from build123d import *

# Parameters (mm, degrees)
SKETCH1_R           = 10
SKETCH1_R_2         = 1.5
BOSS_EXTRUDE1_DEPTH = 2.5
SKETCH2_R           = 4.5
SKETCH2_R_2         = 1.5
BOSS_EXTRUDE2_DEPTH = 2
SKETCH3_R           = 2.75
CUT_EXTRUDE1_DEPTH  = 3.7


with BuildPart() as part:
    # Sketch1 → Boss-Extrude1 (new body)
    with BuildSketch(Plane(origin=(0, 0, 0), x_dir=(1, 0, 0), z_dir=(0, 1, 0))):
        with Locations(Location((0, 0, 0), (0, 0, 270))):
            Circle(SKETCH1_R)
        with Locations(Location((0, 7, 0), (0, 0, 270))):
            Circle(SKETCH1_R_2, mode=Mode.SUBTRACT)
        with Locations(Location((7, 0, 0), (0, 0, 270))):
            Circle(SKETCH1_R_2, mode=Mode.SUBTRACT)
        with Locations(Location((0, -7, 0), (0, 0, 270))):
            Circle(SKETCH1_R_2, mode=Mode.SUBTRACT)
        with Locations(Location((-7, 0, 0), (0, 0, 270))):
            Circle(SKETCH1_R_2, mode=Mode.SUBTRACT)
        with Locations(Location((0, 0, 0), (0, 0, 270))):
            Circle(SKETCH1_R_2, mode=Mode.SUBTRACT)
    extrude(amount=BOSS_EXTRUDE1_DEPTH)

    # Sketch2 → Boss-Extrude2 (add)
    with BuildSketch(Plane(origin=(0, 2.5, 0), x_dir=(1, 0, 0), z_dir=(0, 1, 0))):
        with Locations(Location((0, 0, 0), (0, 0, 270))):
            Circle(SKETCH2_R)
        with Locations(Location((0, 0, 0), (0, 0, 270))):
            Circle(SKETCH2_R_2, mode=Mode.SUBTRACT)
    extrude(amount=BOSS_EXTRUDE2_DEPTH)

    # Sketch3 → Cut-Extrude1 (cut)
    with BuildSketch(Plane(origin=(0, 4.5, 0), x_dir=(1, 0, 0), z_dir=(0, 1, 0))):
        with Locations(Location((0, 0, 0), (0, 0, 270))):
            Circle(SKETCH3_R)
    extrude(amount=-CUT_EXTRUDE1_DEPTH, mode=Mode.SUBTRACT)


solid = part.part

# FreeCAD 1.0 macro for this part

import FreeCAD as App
import Part
import Sketcher
from FreeCAD import Vector

doc = App.newDocument("Part")
body = doc.addObject("PartDesign::Body", "Body")

# Sketch on XZ plane
sketch1 = body.newObject("Sketcher::SketchObject", "Sketch")
sketch1.AttachmentSupport = (doc.getObject("XZ_Plane"), [""])
sketch1.MapMode = "FlatFace"
sketch1.addGeometry(Part.Circle(Vector(0, 0, 0), Vector(0, 0, 1), 10), False)
sketch1.addGeometry(Part.Circle(Vector(0, -7, 0), Vector(0, 0, 1), 1.5), False)
sketch1.addGeometry(Part.Circle(Vector(-7, 0, 0), Vector(0, 0, 1), 1.5), False)
sketch1.addGeometry(Part.Circle(Vector(7, 0, 0), Vector(0, 0, 1), 1.5), False)
sketch1.addGeometry(Part.Circle(Vector(0, 0, 0), Vector(0, 0, 1), 1.5), False)
sketch1.addGeometry(Part.Circle(Vector(0, 7, 0), Vector(0, 0, 1), 1.5), False)
sketch1.addConstraint(Sketcher.Constraint("Coincident", 0, 3, -1, 1))
sketch1.addConstraint(Sketcher.Constraint("Coincident", 4, 3, -1, 1))
sketch1.addConstraint(Sketcher.Constraint("Equal", 1, 2))
sketch1.addConstraint(Sketcher.Constraint("Equal", 2, 3))
sketch1.addConstraint(Sketcher.Constraint("Equal", 3, 4))
sketch1.addConstraint(Sketcher.Constraint("Equal", 4, 5))
sketch1.addConstraint(Sketcher.Constraint("Symmetric", 2, 3, 3, 3, -1, 1))
sketch1.addConstraint(Sketcher.Constraint("Symmetric", 1, 3, 5, 3, -1, 1))
sketch1.addConstraint(Sketcher.Constraint("PointOnObject", 1, 3, -2))
sketch1.addConstraint(Sketcher.Constraint("PointOnObject", 2, 3, -1))
sketch1.addConstraint(Sketcher.Constraint("Diameter", 0, 20.0))
sketch1.addConstraint(Sketcher.Constraint("Diameter", 1, 3.0))
sketch1.addConstraint(Sketcher.Constraint("DistanceY", 1, 3, -1, 1, 7.0))
sketch1.addConstraint(Sketcher.Constraint("DistanceX", 2, 3, -1, 1, 7.0))
pad1 = body.newObject("PartDesign::Pad", "Pad")
pad1.Profile = sketch1
pad1.Length = 2.5
pad1.Reversed = True

# Sketch on XZ plane
sketch2 = body.newObject("Sketcher::SketchObject", "Sketch001")
sketch2.AttachmentSupport = (doc.getObject("XZ_Plane"), [""])
sketch2.MapMode = "FlatFace"
sketch2.AttachmentOffset = App.Placement(Vector(0, 0, -2.5), App.Rotation())
sketch2.addGeometry(Part.Circle(Vector(0, 0, 0), Vector(0, 0, 1), 4.5), False)
sketch2.addGeometry(Part.Circle(Vector(0, 0, 0), Vector(0, 0, 1), 1.5), False)
sketch2.addConstraint(Sketcher.Constraint("Coincident", 0, 3, -1, 1))
sketch2.addConstraint(Sketcher.Constraint("Coincident", 1, 3, -1, 1))
sketch2.addConstraint(Sketcher.Constraint("Diameter", 0, 9.0))
sketch2.addConstraint(Sketcher.Constraint("Diameter", 1, 3.0))
pad2 = body.newObject("PartDesign::Pad", "Pad001")
pad2.Profile = sketch2
pad2.Length = 2
pad2.Reversed = True

# Sketch on XZ plane
sketch3 = body.newObject("Sketcher::SketchObject", "Sketch002")
sketch3.AttachmentSupport = (doc.getObject("XZ_Plane"), [""])
sketch3.MapMode = "FlatFace"
sketch3.AttachmentOffset = App.Placement(Vector(0, 0, -4.5), App.Rotation())
sketch3.addGeometry(Part.Circle(Vector(0, 0, 0), Vector(0, 0, 1), 2.75), False)
sketch3.addConstraint(Sketcher.Constraint("Coincident", 0, 3, -1, 1))
sketch3.addConstraint(Sketcher.Constraint("Diameter", 0, 5.5))
pocket1 = body.newObject("PartDesign::Pocket", "Pocket")
pocket1.Profile = sketch3
pocket1.Length = 3.7
pocket1.Reversed = True

doc.recompute()
